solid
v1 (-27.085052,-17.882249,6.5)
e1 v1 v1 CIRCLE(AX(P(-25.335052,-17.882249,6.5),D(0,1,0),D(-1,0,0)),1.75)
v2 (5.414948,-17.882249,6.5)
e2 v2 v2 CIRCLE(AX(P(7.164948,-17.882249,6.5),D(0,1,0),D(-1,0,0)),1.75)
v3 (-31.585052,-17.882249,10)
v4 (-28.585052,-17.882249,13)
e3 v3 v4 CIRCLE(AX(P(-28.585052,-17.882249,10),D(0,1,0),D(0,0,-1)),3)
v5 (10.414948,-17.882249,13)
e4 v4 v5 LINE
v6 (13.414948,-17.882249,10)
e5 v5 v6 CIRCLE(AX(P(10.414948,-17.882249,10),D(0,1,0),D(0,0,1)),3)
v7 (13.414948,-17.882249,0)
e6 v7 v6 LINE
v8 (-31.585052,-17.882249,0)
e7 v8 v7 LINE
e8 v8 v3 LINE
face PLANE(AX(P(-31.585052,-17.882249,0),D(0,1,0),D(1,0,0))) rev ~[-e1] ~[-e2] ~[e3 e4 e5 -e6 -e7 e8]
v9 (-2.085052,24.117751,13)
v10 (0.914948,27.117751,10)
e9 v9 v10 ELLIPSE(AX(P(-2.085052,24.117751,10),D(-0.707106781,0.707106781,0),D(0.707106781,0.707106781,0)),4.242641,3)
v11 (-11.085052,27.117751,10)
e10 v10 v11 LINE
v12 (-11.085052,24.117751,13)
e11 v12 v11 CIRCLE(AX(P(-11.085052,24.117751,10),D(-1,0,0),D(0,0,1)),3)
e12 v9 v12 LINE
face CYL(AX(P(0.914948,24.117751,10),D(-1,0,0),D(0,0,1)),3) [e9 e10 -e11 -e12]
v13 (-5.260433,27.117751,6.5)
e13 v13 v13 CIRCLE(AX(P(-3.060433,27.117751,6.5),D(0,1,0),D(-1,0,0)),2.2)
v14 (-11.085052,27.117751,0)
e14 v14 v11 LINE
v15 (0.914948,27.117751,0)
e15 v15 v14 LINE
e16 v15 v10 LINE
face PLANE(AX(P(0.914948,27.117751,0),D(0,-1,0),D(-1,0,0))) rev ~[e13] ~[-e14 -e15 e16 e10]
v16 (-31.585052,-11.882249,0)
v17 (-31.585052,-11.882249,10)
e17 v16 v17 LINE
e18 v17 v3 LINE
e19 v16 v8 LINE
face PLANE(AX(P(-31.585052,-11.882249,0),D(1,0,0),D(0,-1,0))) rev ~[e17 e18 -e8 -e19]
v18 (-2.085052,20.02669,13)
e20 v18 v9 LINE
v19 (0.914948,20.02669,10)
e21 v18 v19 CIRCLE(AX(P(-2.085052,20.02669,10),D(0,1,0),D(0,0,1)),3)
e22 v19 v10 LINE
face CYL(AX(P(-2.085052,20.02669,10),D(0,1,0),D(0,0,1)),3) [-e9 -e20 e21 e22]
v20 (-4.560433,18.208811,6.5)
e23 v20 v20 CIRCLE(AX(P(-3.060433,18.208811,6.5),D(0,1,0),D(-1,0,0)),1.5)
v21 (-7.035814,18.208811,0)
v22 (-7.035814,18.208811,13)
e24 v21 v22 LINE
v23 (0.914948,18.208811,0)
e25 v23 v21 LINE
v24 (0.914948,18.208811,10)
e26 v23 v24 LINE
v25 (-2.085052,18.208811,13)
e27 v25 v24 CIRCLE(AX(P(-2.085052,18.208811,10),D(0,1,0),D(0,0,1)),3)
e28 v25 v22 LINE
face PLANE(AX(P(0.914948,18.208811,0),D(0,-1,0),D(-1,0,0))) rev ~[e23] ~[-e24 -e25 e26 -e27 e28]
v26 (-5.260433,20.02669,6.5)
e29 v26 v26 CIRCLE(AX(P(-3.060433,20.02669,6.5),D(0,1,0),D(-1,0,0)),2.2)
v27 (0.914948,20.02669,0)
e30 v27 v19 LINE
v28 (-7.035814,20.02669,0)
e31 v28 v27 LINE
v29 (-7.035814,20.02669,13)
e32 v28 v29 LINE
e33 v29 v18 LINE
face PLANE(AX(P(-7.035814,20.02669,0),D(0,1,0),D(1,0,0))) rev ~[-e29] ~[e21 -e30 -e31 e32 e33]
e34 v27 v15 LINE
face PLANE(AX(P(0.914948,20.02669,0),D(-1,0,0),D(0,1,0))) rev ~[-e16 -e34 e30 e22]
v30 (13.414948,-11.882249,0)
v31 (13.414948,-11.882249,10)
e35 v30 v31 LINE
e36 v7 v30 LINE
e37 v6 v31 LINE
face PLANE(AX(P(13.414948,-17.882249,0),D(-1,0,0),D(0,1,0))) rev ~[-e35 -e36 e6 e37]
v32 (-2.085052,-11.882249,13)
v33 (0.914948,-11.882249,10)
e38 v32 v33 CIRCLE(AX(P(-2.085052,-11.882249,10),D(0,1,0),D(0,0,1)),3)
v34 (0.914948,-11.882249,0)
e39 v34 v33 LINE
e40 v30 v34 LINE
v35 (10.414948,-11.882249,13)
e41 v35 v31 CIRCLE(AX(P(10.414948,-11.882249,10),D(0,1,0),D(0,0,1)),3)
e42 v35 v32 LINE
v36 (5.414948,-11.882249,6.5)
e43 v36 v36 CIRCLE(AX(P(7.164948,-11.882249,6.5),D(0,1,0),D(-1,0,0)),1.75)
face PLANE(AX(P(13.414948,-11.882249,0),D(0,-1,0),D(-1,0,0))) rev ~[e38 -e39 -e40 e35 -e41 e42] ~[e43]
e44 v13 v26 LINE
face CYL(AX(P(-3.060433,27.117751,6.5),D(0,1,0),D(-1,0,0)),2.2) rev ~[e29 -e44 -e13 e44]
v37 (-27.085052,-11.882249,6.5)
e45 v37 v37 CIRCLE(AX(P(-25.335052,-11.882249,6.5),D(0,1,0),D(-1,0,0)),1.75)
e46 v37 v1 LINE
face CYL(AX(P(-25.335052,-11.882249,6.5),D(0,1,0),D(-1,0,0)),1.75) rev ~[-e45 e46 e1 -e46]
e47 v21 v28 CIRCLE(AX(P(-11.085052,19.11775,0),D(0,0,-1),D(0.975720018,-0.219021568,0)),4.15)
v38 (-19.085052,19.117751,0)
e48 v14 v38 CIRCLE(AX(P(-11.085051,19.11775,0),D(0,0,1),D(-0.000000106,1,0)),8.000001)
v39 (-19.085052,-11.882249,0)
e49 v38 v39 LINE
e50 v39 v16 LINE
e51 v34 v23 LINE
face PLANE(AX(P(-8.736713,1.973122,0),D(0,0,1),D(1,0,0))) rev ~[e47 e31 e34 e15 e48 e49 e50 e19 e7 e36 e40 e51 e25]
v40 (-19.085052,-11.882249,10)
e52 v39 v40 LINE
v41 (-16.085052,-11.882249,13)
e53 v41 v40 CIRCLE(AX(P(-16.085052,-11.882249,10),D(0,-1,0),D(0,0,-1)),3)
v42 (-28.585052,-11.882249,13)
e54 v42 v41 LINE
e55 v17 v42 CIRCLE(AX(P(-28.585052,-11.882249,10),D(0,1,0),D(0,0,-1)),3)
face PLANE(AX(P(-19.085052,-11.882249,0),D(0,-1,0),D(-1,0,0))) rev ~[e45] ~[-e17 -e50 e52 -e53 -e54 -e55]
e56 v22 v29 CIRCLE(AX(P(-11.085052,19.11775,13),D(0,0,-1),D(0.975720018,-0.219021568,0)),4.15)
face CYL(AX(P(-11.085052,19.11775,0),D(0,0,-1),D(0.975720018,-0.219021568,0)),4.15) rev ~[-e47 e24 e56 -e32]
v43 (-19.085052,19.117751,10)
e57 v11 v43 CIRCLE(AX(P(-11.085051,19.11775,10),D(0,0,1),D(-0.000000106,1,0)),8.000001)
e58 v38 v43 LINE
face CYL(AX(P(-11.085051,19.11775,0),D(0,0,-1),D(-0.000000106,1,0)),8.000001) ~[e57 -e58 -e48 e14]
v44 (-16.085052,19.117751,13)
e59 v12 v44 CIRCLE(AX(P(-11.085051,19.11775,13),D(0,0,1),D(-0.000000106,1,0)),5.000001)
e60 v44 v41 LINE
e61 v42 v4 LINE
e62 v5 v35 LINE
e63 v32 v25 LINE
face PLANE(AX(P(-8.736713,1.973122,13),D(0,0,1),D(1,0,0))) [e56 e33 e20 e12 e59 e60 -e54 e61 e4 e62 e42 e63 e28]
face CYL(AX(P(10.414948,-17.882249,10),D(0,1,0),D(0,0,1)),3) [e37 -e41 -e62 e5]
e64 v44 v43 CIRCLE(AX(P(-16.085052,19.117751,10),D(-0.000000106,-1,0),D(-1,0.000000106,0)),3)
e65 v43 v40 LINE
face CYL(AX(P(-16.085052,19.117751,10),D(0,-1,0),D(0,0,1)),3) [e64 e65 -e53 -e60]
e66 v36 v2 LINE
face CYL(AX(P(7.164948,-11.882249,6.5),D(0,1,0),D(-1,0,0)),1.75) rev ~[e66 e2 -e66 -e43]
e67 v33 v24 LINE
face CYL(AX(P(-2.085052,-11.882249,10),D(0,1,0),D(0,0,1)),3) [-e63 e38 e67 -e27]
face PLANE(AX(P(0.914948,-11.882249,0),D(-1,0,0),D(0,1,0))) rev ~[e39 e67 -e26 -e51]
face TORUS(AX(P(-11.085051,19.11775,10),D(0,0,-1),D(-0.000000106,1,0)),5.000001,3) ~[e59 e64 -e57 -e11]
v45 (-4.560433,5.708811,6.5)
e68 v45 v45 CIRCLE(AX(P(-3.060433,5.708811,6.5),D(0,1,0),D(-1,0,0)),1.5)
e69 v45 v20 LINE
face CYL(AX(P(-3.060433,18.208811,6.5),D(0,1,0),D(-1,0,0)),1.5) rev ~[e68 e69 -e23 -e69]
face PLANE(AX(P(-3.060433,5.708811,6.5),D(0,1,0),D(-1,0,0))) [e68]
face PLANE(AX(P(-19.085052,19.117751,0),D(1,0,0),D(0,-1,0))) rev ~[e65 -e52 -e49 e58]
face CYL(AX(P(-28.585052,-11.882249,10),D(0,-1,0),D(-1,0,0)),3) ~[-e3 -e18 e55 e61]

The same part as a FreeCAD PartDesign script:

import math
import FreeCAD as App
import Part
import Sketcher
from FreeCAD import Vector
Q = App.Units.Quantity


def edges_at(feature, points):
    """Names of the edges that pass closest to the given points."""
    edges = feature.Shape.Edges
    near = lambda p: min(range(len(edges)), key=lambda i: edges[i].distToShape(Part.Vertex(*p))[0])
    return sorted({f"Edge{near(p) + 1}" for p in points})

doc = App.newDocument("Part")
body = doc.addObject("PartDesign::Body", "Body")

sketch1 = body.newObject("Sketcher::SketchObject", "Sketch")
sketch1.AttachmentSupport = (doc.getObject("XY_Plane"), [""])
sketch1.MapMode = "FlatFace"
sketch1.addGeometry(Part.LineSegment(Vector(-31.585052, -11.882249, 0), Vector(-31.585052, -17.882249, 0)), False)
sketch1.addGeometry(Part.LineSegment(Vector(-31.585052, -17.882249, 0), Vector(13.414948, -17.882249, 0)), False)
sketch1.addGeometry(Part.LineSegment(Vector(13.414948, -17.882249, 0), Vector(13.414948, -11.882249, 0)), False)
sketch1.addGeometry(Part.LineSegment(Vector(13.414948, -11.882249, 0), Vector(0.914948, -11.882249, 0)), False)
sketch1.addGeometry(Part.LineSegment(Vector(0.914948, -11.882249, 0), Vector(0.914948, 18.208811, 0)), False)
sketch1.addGeometry(Part.LineSegment(Vector(0.914948, 18.208811, 0), Vector(-7.035814, 18.208811, 0)), False)
sketch1.addGeometry(Part.ArcOfCircle(Part.Circle(Vector(-11.085052, 19.11775, 0), Vector(0, 0, 1), 4.15), math.radians(12.651571), math.radians(347.348429)), False)
sketch1.addGeometry(Part.LineSegment(Vector(-7.035814, 20.02669, 0), Vector(0.914948, 20.02669, 0)), False)
sketch1.addGeometry(Part.LineSegment(Vector(0.914948, 20.02669, 0), Vector(0.914948, 27.117751, 0)), False)
sketch1.addGeometry(Part.LineSegment(Vector(0.914948, 27.117751, 0), Vector(-11.085052, 27.117751, 0)), False)
sketch1.addGeometry(Part.ArcOfCircle(Part.Circle(Vector(-11.085051, 19.11775, 0), Vector(0, 0, 1), 8.000001), math.radians(90.000006), math.radians(179.999994)), False)
sketch1.addGeometry(Part.LineSegment(Vector(-19.085052, 19.117751, 0), Vector(-19.085052, -11.882249, 0)), False)
sketch1.addGeometry(Part.LineSegment(Vector(-19.085052, -11.882249, 0), Vector(-31.585052, -11.882249, 0)), False)
sketch1.addConstraint(Sketcher.Constraint("Coincident", 0, 2, 1, 1))
sketch1.addConstraint(Sketcher.Constraint("Coincident", 1, 2, 2, 1))
sketch1.addConstraint(Sketcher.Constraint("Coincident", 2, 2, 3, 1))
sketch1.addConstraint(Sketcher.Constraint("Coincident", 3, 2, 4, 1))
sketch1.addConstraint(Sketcher.Constraint("Coincident", 4, 2, 5, 1))
sketch1.addConstraint(Sketcher.Constraint("Coincident", 5, 2, 6, 2))
sketch1.addConstraint(Sketcher.Constraint("Coincident", 6, 1, 7, 1))
sketch1.addConstraint(Sketcher.Constraint("Coincident", 7, 2, 8, 1))
sketch1.addConstraint(Sketcher.Constraint("Coincident", 8, 2, 9, 1))
sketch1.addConstraint(Sketcher.Constraint("Tangent", 9, 2, 10, 1))
sketch1.addConstraint(Sketcher.Constraint("Tangent", 10, 2, 11, 1))
sketch1.addConstraint(Sketcher.Constraint("Coincident", 11, 2, 12, 1))
sketch1.addConstraint(Sketcher.Constraint("Coincident", 12, 2, 0, 1))
sketch1.addConstraint(Sketcher.Constraint("Vertical", 0))
sketch1.addConstraint(Sketcher.Constraint("Horizontal", 1))
sketch1.addConstraint(Sketcher.Constraint("Vertical", 2))
sketch1.addConstraint(Sketcher.Constraint("Horizontal", 3))
sketch1.addConstraint(Sketcher.Constraint("Vertical", 4))
sketch1.addConstraint(Sketcher.Constraint("Horizontal", 5))
sketch1.addConstraint(Sketcher.Constraint("Horizontal", 7))
sketch1.addConstraint(Sketcher.Constraint("Vertical", 8))
sketch1.addConstraint(Sketcher.Constraint("Horizontal", 9))
sketch1.addConstraint(Sketcher.Constraint("Vertical", 11))
sketch1.addConstraint(Sketcher.Constraint("Horizontal", 12))
sketch1.addConstraint(Sketcher.Constraint("Coincident", 10, 3, 6, 3))
sketch1.addConstraint(Sketcher.Constraint("Horizontal", 3, 2, 11, 2))
sketch1.addConstraint(Sketcher.Constraint("Vertical", 5, 2, 6, 1))
sketch1.addConstraint(Sketcher.Constraint("Vertical", 4, 2, 7, 2))
sketch1.addConstraint(Sketcher.Constraint("Equal", 3, 12))
sketch1.addConstraint(Sketcher.Constraint("Radius", 10, Q("8.000001 mm")))
sketch1.addConstraint(Sketcher.Constraint("DistanceX", 1, 1, 1, 2, Q("45 mm")))
sketch1.addConstraint(Sketcher.Constraint("DistanceX", 9, 2, 9, 1, Q("12 mm")))
sketch1.addConstraint(Sketcher.Constraint("DistanceY", 0, 2, 0, 1, Q("6 mm")))
sketch1.addConstraint(Sketcher.Constraint("DistanceY", 11, 2, 11, 1, Q("31 mm")))
sketch1.addConstraint(Sketcher.Constraint("Radius", 6, Q("4.15 mm")))
sketch1.addConstraint(Sketcher.Constraint("DistanceY", 4, 1, 4, 2, Q("30.09106 mm")))
sketch1.addConstraint(Sketcher.Constraint("DistanceY", -1, 1, 6, 3, Q("19.11775 mm")))
sketch1.addConstraint(Sketcher.Constraint("DistanceX", 10, 3, -1, 1, Q("11.085051 mm")))
pad1 = body.newObject("PartDesign::Pad", "Pad")
pad1.Profile = sketch1
pad1.Length = 13

sketch2 = body.newObject("Sketcher::SketchObject", "Sketch001")
sketch2.AttachmentSupport = (doc.getObject("XZ_Plane"), [""])
sketch2.MapMode = "FlatFace"
sketch2.AttachmentOffset = App.Placement(Vector(0, 0, -18.208811), App.Rotation())
sketch2.addGeometry(Part.Circle(Vector(-3.060433, 6.5, 0), Vector(0, 0, 1), 1.5), False)
sketch2.addConstraint(Sketcher.Constraint("Diameter", 0, Q("3 mm")))
sketch2.addConstraint(Sketcher.Constraint("DistanceY", -1, 1, 0, 3, Q("6.5 mm")))
sketch2.addConstraint(Sketcher.Constraint("DistanceX", 0, 3, -1, 1, Q("3.060433 mm")))
pocket1 = body.newObject("PartDesign::Pocket", "Pocket")
pocket1.Profile = sketch2
pocket1.Length = 25
pocket1.Midplane = True

sketch3 = body.newObject("Sketcher::SketchObject", "Sketch002")
sketch3.AttachmentSupport = (doc.getObject("XZ_Plane"), [""])
sketch3.MapMode = "FlatFace"
sketch3.AttachmentOffset = App.Placement(Vector(0, 0, -27.117751), App.Rotation())
sketch3.addGeometry(Part.Circle(Vector(-3.060433, 6.5, 0), Vector(0, 0, 1), 2.2), False)
sketch3.addConstraint(Sketcher.Constraint("Diameter", 0, Q("4.4 mm")))
sketch3.addConstraint(Sketcher.Constraint("DistanceY", -1, 1, 0, 3, Q("6.5 mm")))
sketch3.addConstraint(Sketcher.Constraint("DistanceX", 0, 3, -1, 1, Q("3.060433 mm")))
pocket2 = body.newObject("PartDesign::Pocket", "Pocket001")
pocket2.Profile = sketch3
pocket2.Length = 8
pocket2.Reversed = True

sketch4 = body.newObject("Sketcher::SketchObject", "Sketch003")
sketch4.AttachmentSupport = (doc.getObject("XZ_Plane"), [""])
sketch4.MapMode = "FlatFace"
sketch4.AttachmentOffset = App.Placement(Vector(0, 0, 11.882249), App.Rotation())
sketch4.addGeometry(Part.Circle(Vector(-25.335052, 6.5, 0), Vector(0, 0, 1), 1.75), False)
sketch4.addGeometry(Part.Circle(Vector(7.164948, 6.5, 0), Vector(0, 0, 1), 1.75), False)
sketch4.addConstraint(Sketcher.Constraint("Equal", 0, 1))
sketch4.addConstraint(Sketcher.Constraint("Horizontal", 0, 3, 1, 3))
sketch4.addConstraint(Sketcher.Constraint("Diameter", 0, Q("3.5 mm")))
sketch4.addConstraint(Sketcher.Constraint("DistanceY", -1, 1, 0, 3, Q("6.5 mm")))
sketch4.addConstraint(Sketcher.Constraint("DistanceX", 0, 3, 1, 3, Q("32.5 mm")))
sketch4.addConstraint(Sketcher.Constraint("DistanceX", 0, 3, -1, 1, Q("25.335052 mm")))
pocket3 = body.newObject("PartDesign::Pocket", "Pocket002")
pocket3.Profile = sketch4
pocket3.Length = 25
pocket3.Reversed = True
doc.recompute()

fillet = body.newObject("PartDesign::Fillet", "Fillet")
fillet.Base = (pocket3, edges_at(pocket3, [
    (13.415, -14.882, 13),
    (-31.585, -14.882, 13),
    (0.915, 3.163, 13),
    (0.915, 23.572, 13),
    (-19.085, 3.618, 13),
]))
fillet.Radius = 3

doc.recompute()
